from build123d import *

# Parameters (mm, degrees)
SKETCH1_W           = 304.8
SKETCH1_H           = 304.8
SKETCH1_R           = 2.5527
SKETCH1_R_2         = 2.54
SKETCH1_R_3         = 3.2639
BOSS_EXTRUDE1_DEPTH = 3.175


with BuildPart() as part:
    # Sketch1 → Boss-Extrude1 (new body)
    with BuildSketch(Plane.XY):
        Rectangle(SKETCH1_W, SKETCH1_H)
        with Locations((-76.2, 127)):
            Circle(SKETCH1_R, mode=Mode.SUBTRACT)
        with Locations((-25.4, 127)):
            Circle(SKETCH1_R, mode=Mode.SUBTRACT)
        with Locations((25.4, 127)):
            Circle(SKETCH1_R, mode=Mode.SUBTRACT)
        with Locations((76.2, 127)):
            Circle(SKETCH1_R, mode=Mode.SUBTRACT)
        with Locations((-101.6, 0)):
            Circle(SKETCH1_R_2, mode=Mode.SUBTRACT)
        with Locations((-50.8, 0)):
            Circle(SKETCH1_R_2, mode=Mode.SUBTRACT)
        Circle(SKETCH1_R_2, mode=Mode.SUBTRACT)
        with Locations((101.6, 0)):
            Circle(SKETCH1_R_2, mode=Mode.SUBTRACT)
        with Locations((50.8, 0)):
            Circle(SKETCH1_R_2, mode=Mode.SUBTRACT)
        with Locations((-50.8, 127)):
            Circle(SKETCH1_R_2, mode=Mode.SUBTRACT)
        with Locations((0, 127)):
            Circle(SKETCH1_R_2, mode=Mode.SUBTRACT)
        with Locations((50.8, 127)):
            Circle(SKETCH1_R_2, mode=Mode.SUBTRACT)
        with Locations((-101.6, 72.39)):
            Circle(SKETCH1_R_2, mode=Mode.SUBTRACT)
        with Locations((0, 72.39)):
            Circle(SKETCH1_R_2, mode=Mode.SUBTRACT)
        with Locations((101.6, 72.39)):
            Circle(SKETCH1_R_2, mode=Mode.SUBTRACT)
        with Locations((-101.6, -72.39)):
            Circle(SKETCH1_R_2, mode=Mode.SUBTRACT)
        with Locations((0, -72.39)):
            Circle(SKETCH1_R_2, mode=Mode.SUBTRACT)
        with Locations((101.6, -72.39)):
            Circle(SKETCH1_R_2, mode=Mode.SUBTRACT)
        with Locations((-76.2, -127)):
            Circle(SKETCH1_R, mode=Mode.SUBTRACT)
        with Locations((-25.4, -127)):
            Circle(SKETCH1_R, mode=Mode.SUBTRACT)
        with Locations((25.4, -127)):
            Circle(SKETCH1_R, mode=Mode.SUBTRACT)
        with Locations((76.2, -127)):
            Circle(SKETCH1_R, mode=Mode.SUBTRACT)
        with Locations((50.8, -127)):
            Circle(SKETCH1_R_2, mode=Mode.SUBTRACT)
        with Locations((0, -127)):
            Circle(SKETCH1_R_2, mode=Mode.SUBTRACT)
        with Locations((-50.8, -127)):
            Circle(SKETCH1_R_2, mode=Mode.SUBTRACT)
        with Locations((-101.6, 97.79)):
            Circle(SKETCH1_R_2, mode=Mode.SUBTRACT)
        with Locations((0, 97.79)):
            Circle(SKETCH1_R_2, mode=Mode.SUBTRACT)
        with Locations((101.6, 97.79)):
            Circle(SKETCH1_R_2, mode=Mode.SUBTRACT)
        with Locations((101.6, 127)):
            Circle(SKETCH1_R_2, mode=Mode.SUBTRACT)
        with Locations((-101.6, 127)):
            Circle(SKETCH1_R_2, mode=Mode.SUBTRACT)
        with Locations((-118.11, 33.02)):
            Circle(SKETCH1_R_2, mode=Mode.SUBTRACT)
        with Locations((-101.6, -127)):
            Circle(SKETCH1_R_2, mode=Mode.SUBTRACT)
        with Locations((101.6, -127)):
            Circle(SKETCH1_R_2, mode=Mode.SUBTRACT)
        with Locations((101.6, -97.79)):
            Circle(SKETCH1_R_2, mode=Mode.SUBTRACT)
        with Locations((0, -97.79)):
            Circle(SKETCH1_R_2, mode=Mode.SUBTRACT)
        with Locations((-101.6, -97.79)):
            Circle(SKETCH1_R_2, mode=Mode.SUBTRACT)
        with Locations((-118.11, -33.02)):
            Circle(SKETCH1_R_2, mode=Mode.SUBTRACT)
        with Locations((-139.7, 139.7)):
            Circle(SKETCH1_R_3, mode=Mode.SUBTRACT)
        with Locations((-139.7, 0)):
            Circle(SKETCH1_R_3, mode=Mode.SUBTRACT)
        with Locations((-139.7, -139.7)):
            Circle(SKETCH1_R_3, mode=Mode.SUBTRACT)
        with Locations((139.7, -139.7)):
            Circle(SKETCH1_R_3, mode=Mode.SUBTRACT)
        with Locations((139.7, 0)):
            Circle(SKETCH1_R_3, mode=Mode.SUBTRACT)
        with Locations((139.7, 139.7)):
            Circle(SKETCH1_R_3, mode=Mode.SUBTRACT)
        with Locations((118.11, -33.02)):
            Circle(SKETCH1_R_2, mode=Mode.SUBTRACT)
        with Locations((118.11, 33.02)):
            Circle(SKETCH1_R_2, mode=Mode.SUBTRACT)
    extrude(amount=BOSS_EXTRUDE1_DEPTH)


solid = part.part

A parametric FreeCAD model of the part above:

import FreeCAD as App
import Part
import Sketcher

V = App.Vector
Q = App.Units.Quantity

doc = App.newDocument("Part")
body = doc.addObject("PartDesign::Body", "Body")

# Sketch on XY plane
sketch1 = body.newObject("Sketcher::SketchObject", "Sketch")
sketch1.AttachmentSupport = (doc.getObject("XY_Plane"), [""])
sketch1.MapMode = "FlatFace"
sketch1.addGeometry(Part.LineSegment(V(-152.4, 152.4, 0), V(-152.4, -152.4, 0)), False)
sketch1.addGeometry(Part.LineSegment(V(-152.4, -152.4, 0), V(152.4, -152.4, 0)), False)
sketch1.addGeometry(Part.LineSegment(V(152.4, -152.4, 0), V(152.4, 152.4, 0)), False)
sketch1.addGeometry(Part.LineSegment(V(152.4, 152.4, 0), V(-152.4, 152.4, 0)), False)
sketch1.addGeometry(Part.Circle(V(-139.7, -139.7, 0), V(0, 0, 1), 3.2639), False)
sketch1.addGeometry(Part.Circle(V(-101.6, -127, 0), V(0, 0, 1), 2.54), False)
sketch1.addGeometry(Part.Circle(V(-76.2, -127, 0), V(0, 0, 1), 2.5527), False)
sketch1.addGeometry(Part.Circle(V(-101.6, -97.79, 0), V(0, 0, 1), 2.54), False)
sketch1.addGeometry(Part.Circle(V(-101.6, -72.39, 0), V(0, 0, 1), 2.54), False)
sketch1.addGeometry(Part.Circle(V(-50.8, -127, 0), V(0, 0, 1), 2.54), False)
sketch1.addGeometry(Part.Circle(V(-25.4, -127, 0), V(0, 0, 1), 2.5527), False)
sketch1.addGeometry(Part.Circle(V(-118.11, -33.02, 0), V(0, 0, 1), 2.54), False)
sketch1.addGeometry(Part.Circle(V(0, -127, 0), V(0, 0, 1), 2.54), False)
sketch1.addGeometry(Part.Circle(V(25.4, -127, 0), V(0, 0, 1), 2.5527), False)
sketch1.addGeometry(Part.Circle(V(50.8, -127, 0), V(0, 0, 1), 2.54), False)
sketch1.addGeometry(Part.Circle(V(0, -97.79, 0), V(0, 0, 1), 2.54), False)
sketch1.addGeometry(Part.Circle(V(0, -72.39, 0), V(0, 0, 1), 2.54), False)
sketch1.addGeometry(Part.Circle(V(76.2, -127, 0), V(0, 0, 1), 2.5527), False)
sketch1.addGeometry(Part.Circle(V(101.6, -127, 0), V(0, 0, 1), 2.54), False)
sketch1.addGeometry(Part.Circle(V(139.7, -139.7, 0), V(0, 0, 1), 3.2639), False)
sketch1.addGeometry(Part.Circle(V(101.6, -97.79, 0), V(0, 0, 1), 2.54), False)
sketch1.addGeometry(Part.Circle(V(101.6, -72.39, 0), V(0, 0, 1), 2.54), False)
sketch1.addGeometry(Part.Circle(V(118.11, -33.02, 0), V(0, 0, 1), 2.54), False)
sketch1.addGeometry(Part.Circle(V(-139.7, 0, 0), V(0, 0, 1), 3.2639), False)
sketch1.addGeometry(Part.Circle(V(-118.11, 33.02, 0), V(0, 0, 1), 2.54), False)
sketch1.addGeometry(Part.Circle(V(-101.6, 0, 0), V(0, 0, 1), 2.54), False)
sketch1.addGeometry(Part.Circle(V(-50.8, 0, 0), V(0, 0, 1), 2.54), False)
sketch1.addGeometry(Part.Circle(V(-101.6, 72.39, 0), V(0, 0, 1), 2.54), False)
sketch1.addGeometry(Part.Circle(V(-101.6, 97.79, 0), V(0, 0, 1), 2.54), False)
sketch1.addGeometry(Part.Circle(V(-139.7, 139.7, 0), V(0, 0, 1), 3.2639), False)
sketch1.addGeometry(Part.Circle(V(-101.6, 127, 0), V(0, 0, 1), 2.54), False)
sketch1.addGeometry(Part.Circle(V(-76.2, 127, 0), V(0, 0, 1), 2.5527), False)
sketch1.addGeometry(Part.Circle(V(-50.8, 127, 0), V(0, 0, 1), 2.54), False)
sketch1.addGeometry(Part.Circle(V(-25.4, 127, 0), V(0, 0, 1), 2.5527), False)
sketch1.addGeometry(Part.Circle(V(0, 0, 0), V(0, 0, 1), 2.54), False)
sketch1.addGeometry(Part.Circle(V(50.8, 0, 0), V(0, 0, 1), 2.54), False)
sketch1.addGeometry(Part.Circle(V(101.6, 0, 0), V(0, 0, 1), 2.54), False)
sketch1.addGeometry(Part.Circle(V(139.7, 0, 0), V(0, 0, 1), 3.2639), False)
sketch1.addGeometry(Part.Circle(V(118.11, 33.02, 0), V(0, 0, 1), 2.54), False)
sketch1.addGeometry(Part.Circle(V(0, 72.39, 0), V(0, 0, 1), 2.54), False)
sketch1.addGeometry(Part.Circle(V(0, 97.79, 0), V(0, 0, 1), 2.54), False)
sketch1.addGeometry(Part.Circle(V(0, 127, 0), V(0, 0, 1), 2.54), False)
sketch1.addGeometry(Part.Circle(V(25.4, 127, 0), V(0, 0, 1), 2.5527), False)
sketch1.addGeometry(Part.Circle(V(50.8, 127, 0), V(0, 0, 1), 2.54), False)
sketch1.addGeometry(Part.Circle(V(101.6, 72.39, 0), V(0, 0, 1), 2.54), False)
sketch1.addGeometry(Part.Circle(V(101.6, 97.79, 0), V(0, 0, 1), 2.54), False)
sketch1.addGeometry(Part.Circle(V(76.2, 127, 0), V(0, 0, 1), 2.5527), False)
sketch1.addGeometry(Part.Circle(V(101.6, 127, 0), V(0, 0, 1), 2.54), False)
sketch1.addGeometry(Part.Circle(V(139.7, 139.7, 0), V(0, 0, 1), 3.2639), False)
sketch1.addConstraint(Sketcher.Constraint("Coincident", 0, 2, 1, 1))
sketch1.addConstraint(Sketcher.Constraint("Coincident", 1, 2, 2, 1))
sketch1.addConstraint(Sketcher.Constraint("Coincident", 2, 2, 3, 1))
sketch1.addConstraint(Sketcher.Constraint("Coincident", 3, 2, 0, 1))
sketch1.addConstraint(Sketcher.Constraint("Vertical", 0))
sketch1.addConstraint(Sketcher.Constraint("Horizontal", 1))
sketch1.addConstraint(Sketcher.Constraint("Vertical", 2))
sketch1.addConstraint(Sketcher.Constraint("Horizontal", 3))
sketch1.addConstraint(Sketcher.Constraint("Coincident", 34, 3, -1, 1))
sketch1.addConstraint(Sketcher.Constraint("Equal", 5, 7))
sketch1.addConstraint(Sketcher.Constraint("Equal", 7, 8))
sketch1.addConstraint(Sketcher.Constraint("Equal", 8, 9))
sketch1.addConstraint(Sketcher.Constraint("Equal", 6, 10))
sketch1.addConstraint(Sketcher.Constraint("Equal", 9, 11))
sketch1.addConstraint(Sketcher.Constraint("Equal", 11, 12))
sketch1.addConstraint(Sketcher.Constraint("Equal", 10, 13))
sketch1.addConstraint(Sketcher.Constraint("Equal", 12, 14))
sketch1.addConstraint(Sketcher.Constraint("Equal", 14, 15))
sketch1.addConstraint(Sketcher.Constraint("Equal", 15, 16))
sketch1.addConstraint(Sketcher.Constraint("Equal", 13, 17))
sketch1.addConstraint(Sketcher.Constraint("Equal", 16, 18))
sketch1.addConstraint(Sketcher.Constraint("Equal", 4, 19))
sketch1.addConstraint(Sketcher.Constraint("Equal", 18, 20))
sketch1.addConstraint(Sketcher.Constraint("Equal", 20, 21))
sketch1.addConstraint(Sketcher.Constraint("Equal", 21, 22))
sketch1.addConstraint(Sketcher.Constraint("Equal", 19, 23))
sketch1.addConstraint(Sketcher.Constraint("Equal", 22, 24))
sketch1.addConstraint(Sketcher.Constraint("Equal", 24, 25))
sketch1.addConstraint(Sketcher.Constraint("Equal", 25, 26))
sketch1.addConstraint(Sketcher.Constraint("Equal", 26, 27))
sketch1.addConstraint(Sketcher.Constraint("Equal", 27, 28))
sketch1.addConstraint(Sketcher.Constraint("Equal", 23, 29))
sketch1.addConstraint(Sketcher.Constraint("Equal", 28, 30))
sketch1.addConstraint(Sketcher.Constraint("Equal", 17, 31))
sketch1.addConstraint(Sketcher.Constraint("Equal", 30, 32))
sketch1.addConstraint(Sketcher.Constraint("Equal", 31, 33))
sketch1.addConstraint(Sketcher.Constraint("Equal", 32, 34))
sketch1.addConstraint(Sketcher.Constraint("Equal", 34, 35))
sketch1.addConstraint(Sketcher.Constraint("Equal", 35, 36))
sketch1.addConstraint(Sketcher.Constraint("Equal", 29, 37))
sketch1.addConstraint(Sketcher.Constraint("Equal", 36, 38))
sketch1.addConstraint(Sketcher.Constraint("Equal", 38, 39))
sketch1.addConstraint(Sketcher.Constraint("Equal", 39, 40))
sketch1.addConstraint(Sketcher.Constraint("Equal", 40, 41))
sketch1.addConstraint(Sketcher.Constraint("Equal", 33, 42))
sketch1.addConstraint(Sketcher.Constraint("Equal", 41, 43))
sketch1.addConstraint(Sketcher.Constraint("Equal", 43, 44))
sketch1.addConstraint(Sketcher.Constraint("Equal", 44, 45))
sketch1.addConstraint(Sketcher.Constraint("Equal", 42, 46))
sketch1.addConstraint(Sketcher.Constraint("Equal", 45, 47))
sketch1.addConstraint(Sketcher.Constraint("Equal", 37, 48))
sketch1.addConstraint(Sketcher.Constraint("Symmetric", 22, 3, 24, 3, -1, 1))
sketch1.addConstraint(Sketcher.Constraint("Symmetric", 21, 3, 27, 3, -1, 1))
sketch1.addConstraint(Sketcher.Constraint("Symmetric", 20, 3, 28, 3, -1, 1))
sketch1.addConstraint(Sketcher.Constraint("Symmetric", 19, 3, 29, 3, -1, 1))
sketch1.addConstraint(Sketcher.Constraint("Symmetric", 18, 3, 30, 3, -1, 1))
sketch1.addConstraint(Sketcher.Constraint("Symmetric", 17, 3, 31, 3, -1, 1))
sketch1.addConstraint(Sketcher.Constraint("Symmetric", 14, 3, 32, 3, -1, 1))
sketch1.addConstraint(Sketcher.Constraint("Symmetric", 13, 3, 33, 3, -1, 1))
sketch1.addConstraint(Sketcher.Constraint("Symmetric", 26, 3, 35, 3, -1, 1))
sketch1.addConstraint(Sketcher.Constraint("Symmetric", 25, 3, 36, 3, -1, 1))
sketch1.addConstraint(Sketcher.Constraint("Symmetric", 23, 3, 37, 3, -1, 1))
sketch1.addConstraint(Sketcher.Constraint("Symmetric", 11, 3, 38, 3, -1, 1))
sketch1.addConstraint(Sketcher.Constraint("Symmetric", 16, 3, 39, 3, -1, 1))
sketch1.addConstraint(Sketcher.Constraint("Symmetric", 15, 3, 40, 3, -1, 1))
sketch1.addConstraint(Sketcher.Constraint("Symmetric", 12, 3, 41, 3, -1, 1))
sketch1.addConstraint(Sketcher.Constraint("Symmetric", 10, 3, 42, 3, -1, 1))
sketch1.addConstraint(Sketcher.Constraint("Symmetric", 9, 3, 43, 3, -1, 1))
sketch1.addConstraint(Sketcher.Constraint("Symmetric", 8, 3, 44, 3, -1, 1))
sketch1.addConstraint(Sketcher.Constraint("Symmetric", 7, 3, 45, 3, -1, 1))
sketch1.addConstraint(Sketcher.Constraint("Symmetric", 6, 3, 46, 3, -1, 1))
sketch1.addConstraint(Sketcher.Constraint("Symmetric", 5, 3, 47, 3, -1, 1))
sketch1.addConstraint(Sketcher.Constraint("Symmetric", 4, 3, 48, 3, -1, 1))
sketch1.addConstraint(Sketcher.Constraint("Symmetric", 0, 2, 2, 2, -1, 1))
sketch1.addConstraint(Sketcher.Constraint("Symmetric", 10, 3, 13, 3, -2))
sketch1.addConstraint(Sketcher.Constraint("Symmetric", 9, 3, 14, 3, -2))
sketch1.addConstraint(Sketcher.Constraint("Symmetric", 6, 3, 17, 3, -2))
sketch1.addConstraint(Sketcher.Constraint("Symmetric", 5, 3, 18, 3, -2))
sketch1.addConstraint(Sketcher.Constraint("Symmetric", 4, 3, 19, 3, -2))
sketch1.addConstraint(Sketcher.Constraint("Symmetric", 7, 3, 20, 3, -2))
sketch1.addConstraint(Sketcher.Constraint("Symmetric", 8, 3, 21, 3, -2))
sketch1.addConstraint(Sketcher.Constraint("Symmetric", 11, 3, 22, 3, -2))
sketch1.addConstraint(Sketcher.Constraint("PointOnObject", 12, 3, -2))
sketch1.addConstraint(Sketcher.Constraint("PointOnObject", 15, 3, -2))
sketch1.addConstraint(Sketcher.Constraint("PointOnObject", 16, 3, -2))
sketch1.addConstraint(Sketcher.Constraint("PointOnObject", 23, 3, -1))
sketch1.addConstraint(Sketcher.Constraint("PointOnObject", 25, 3, -1))
sketch1.addConstraint(Sketcher.Constraint("PointOnObject", 26, 3, -1))
sketch1.addConstraint(Sketcher.Constraint("Horizontal", 5, 3, 6, 3))
sketch1.addConstraint(Sketcher.Constraint("Horizontal", 6, 3, 9, 3))
sketch1.addConstraint(Sketcher.Constraint("Horizontal", 9, 3, 10, 3))
sketch1.addConstraint(Sketcher.Constraint("Horizontal", 10, 3, 12, 3))
sketch1.addConstraint(Sketcher.Constraint("Horizontal", 7, 3, 15, 3))
sketch1.addConstraint(Sketcher.Constraint("Horizontal", 8, 3, 16, 3))
sketch1.addConstraint(Sketcher.Constraint("Vertical", 5, 3, 7, 3))
sketch1.addConstraint(Sketcher.Constraint("Vertical", 7, 3, 8, 3))
sketch1.addConstraint(Sketcher.Constraint("Vertical", 4, 3, 23, 3))
sketch1.addConstraint(Sketcher.Constraint("Vertical", 8, 3, 25, 3))
sketch1.addConstraint(Sketcher.Constraint("Vertical", 9, 3, 26, 3))
sketch1.addConstraint(Sketcher.Constraint("Equal", 3, 0))
sketch1.addConstraint(Sketcher.Constraint("Diameter", 5, Q("0.2 in")))
sketch1.addConstraint(Sketcher.Constraint("DistanceX", 1, 1, 1, 2, Q("12 in")))
sketch1.addConstraint(Sketcher.Constraint("Diameter", 4, Q("0.257 in")))
sketch1.addConstraint(Sketcher.Constraint("Diameter", 6, Q("0.201 in")))
sketch1.addConstraint(Sketcher.Constraint("DistanceX", 5, 3, -1, 1, Q("4 in")))
sketch1.addConstraint(Sketcher.Constraint("DistanceY", 5, 3, -1, 1, Q("5 in")))
sketch1.addConstraint(Sketcher.Constraint("DistanceX", 6, 3, -1, 1, Q("3 in")))
sketch1.addConstraint(Sketcher.Constraint("DistanceX", 9, 3, -1, 1, Q("2 in")))
sketch1.addConstraint(Sketcher.Constraint("DistanceX", 10, 3, -1, 1, Q("1 in")))
sketch1.addConstraint(Sketcher.Constraint("DistanceY", 7, 3, 8, 3, Q("1 in")))
sketch1.addConstraint(Sketcher.Constraint("DistanceX", 4, 3, -1, 1, Q("5.5 in")))
sketch1.addConstraint(Sketcher.Constraint("DistanceY", 4, 3, -1, 1, Q("5.5 in")))
sketch1.addConstraint(Sketcher.Constraint("DistanceY", 11, 3, -1, 1, Q("1.3 in")))
sketch1.addConstraint(Sketcher.Constraint("DistanceY", 7, 3, -1, 1, Q("3.85 in")))
sketch1.addConstraint(Sketcher.Constraint("DistanceX", 11, 3, -1, 1, Q("4.65 in")))
pad1 = body.newObject("PartDesign::Pad", "Pad")
pad1.Profile = sketch1
pad1.Length = Q("0.125 in")

doc.recompute()
